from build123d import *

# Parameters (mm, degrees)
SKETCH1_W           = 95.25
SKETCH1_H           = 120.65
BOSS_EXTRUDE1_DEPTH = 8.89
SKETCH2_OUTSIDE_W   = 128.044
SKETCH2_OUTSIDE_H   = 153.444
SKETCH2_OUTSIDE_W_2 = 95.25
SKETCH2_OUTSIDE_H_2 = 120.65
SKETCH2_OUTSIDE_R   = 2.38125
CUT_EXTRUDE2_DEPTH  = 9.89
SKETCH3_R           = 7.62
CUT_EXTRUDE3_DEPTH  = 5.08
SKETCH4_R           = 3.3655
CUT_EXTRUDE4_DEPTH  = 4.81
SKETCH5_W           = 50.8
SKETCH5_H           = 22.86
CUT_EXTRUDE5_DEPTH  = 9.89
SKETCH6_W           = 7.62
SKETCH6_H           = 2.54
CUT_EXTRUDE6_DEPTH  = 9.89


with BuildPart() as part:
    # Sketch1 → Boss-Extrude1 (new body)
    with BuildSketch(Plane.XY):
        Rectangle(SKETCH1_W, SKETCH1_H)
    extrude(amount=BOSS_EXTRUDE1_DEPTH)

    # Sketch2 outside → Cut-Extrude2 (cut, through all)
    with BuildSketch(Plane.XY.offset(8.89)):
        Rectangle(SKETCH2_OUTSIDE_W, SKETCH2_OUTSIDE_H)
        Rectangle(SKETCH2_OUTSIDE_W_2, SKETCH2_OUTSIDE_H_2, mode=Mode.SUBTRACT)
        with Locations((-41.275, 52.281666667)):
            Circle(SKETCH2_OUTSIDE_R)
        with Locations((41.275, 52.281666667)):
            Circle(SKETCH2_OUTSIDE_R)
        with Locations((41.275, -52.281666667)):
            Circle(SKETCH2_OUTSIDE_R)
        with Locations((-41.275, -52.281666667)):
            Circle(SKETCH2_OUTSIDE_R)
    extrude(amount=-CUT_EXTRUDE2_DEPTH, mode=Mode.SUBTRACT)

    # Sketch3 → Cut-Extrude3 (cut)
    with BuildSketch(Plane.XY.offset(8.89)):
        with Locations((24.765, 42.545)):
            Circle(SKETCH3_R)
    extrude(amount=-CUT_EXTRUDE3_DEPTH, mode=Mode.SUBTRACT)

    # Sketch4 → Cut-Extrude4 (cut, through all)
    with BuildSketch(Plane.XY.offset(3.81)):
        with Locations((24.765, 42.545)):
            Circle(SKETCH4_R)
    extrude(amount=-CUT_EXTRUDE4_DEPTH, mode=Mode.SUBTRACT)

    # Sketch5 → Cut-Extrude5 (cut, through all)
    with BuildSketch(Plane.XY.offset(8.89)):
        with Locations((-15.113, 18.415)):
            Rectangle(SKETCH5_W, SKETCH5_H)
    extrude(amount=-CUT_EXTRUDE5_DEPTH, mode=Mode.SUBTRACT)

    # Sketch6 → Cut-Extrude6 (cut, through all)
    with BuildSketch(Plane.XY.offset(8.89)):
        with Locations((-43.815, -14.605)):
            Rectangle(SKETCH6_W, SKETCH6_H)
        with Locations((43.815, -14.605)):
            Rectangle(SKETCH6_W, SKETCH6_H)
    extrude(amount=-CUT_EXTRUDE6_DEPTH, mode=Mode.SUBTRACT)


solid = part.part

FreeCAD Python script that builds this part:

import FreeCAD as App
import Part
import Sketcher
Q = App.Units.Quantity


def add_polygon(sketch, points):
    """Adds a closed chain of lines whose ends are joined by coincident constraints."""
    first, n = sketch.GeometryCount, len(points)
    for a, b in zip(points, points[1:] + points[:1]):
        sketch.addGeometry(Part.LineSegment(App.Vector(*a, 0), App.Vector(*b, 0)), False)
    for i in range(n):
        sketch.addConstraint(Sketcher.Constraint("Coincident", first + i, 2, first + (i + 1) % n, 1))

doc = App.newDocument("Part")
body = doc.addObject("PartDesign::Body", "Body")

sketch1 = doc.addObject("Sketcher::SketchObject", "Sketch")
body.addObject(sketch1)
sketch1.AttachmentSupport = (doc.XY_Plane, [""])
sketch1.MapMode = "FlatFace"
add_polygon(sketch1, [(-48, 60), (-48, -60), (48, -60), (48, 60)])
sketch1.addConstraint([
    Sketcher.Constraint("Vertical", 0),
    Sketcher.Constraint("Horizontal", 1),
    Sketcher.Constraint("Vertical", 2),
    Sketcher.Constraint("Horizontal", 3),
    Sketcher.Constraint("Symmetric", 0, 2, 2, 2, -1, 1),
    Sketcher.Constraint("DistanceX", 1, 1, 1, 2, Q("3.75 in")),
    Sketcher.Constraint("DistanceY", 0, 2, 0, 1, Q("4.75 in")),
])
pad1 = doc.addObject("PartDesign::Pad", "Pad")
body.addObject(pad1)
pad1.Profile = sketch1
pad1.Length = Q("0.35 in")

sketch2 = doc.addObject("Sketcher::SketchObject", "Sketch001")
body.addObject(sketch2)
sketch2.AttachmentSupport = (doc.XY_Plane, [""])
sketch2.MapMode = "FlatFace"
sketch2.AttachmentOffset = App.Placement(App.Vector(0, 0, 0.35 * 25.4), App.Rotation())
add_polygon(sketch2, [(-64, 76.7), (-64, -76.7), (64, -76.7), (64, 76.7)])
add_polygon(sketch2, [(47.6, -60.3), (-47.6, -60.3), (-47.6, 60.3), (47.6, 60.3)])
sketch2.addGeometry(Part.Circle(App.Vector(-41.3, 52.3, 0), App.Vector(0, 0, 1), 2.4), False)
sketch2.addGeometry(Part.Circle(App.Vector(41.3, 52.3, 0), App.Vector(0, 0, 1), 2.4), False)
sketch2.addGeometry(Part.Circle(App.Vector(41.3, -52.3, 0), App.Vector(0, 0, 1), 2.4), False)
sketch2.addGeometry(Part.Circle(App.Vector(-41.3, -52.3, 0), App.Vector(0, 0, 1), 2.4), False)
sketch2.addConstraint([
    Sketcher.Constraint("Vertical", 0),
    Sketcher.Constraint("Horizontal", 1),
    Sketcher.Constraint("Vertical", 2),
    Sketcher.Constraint("Horizontal", 3),
    Sketcher.Constraint("Horizontal", 4),
    Sketcher.Constraint("Vertical", 5),
    Sketcher.Constraint("Horizontal", 6),
    Sketcher.Constraint("Vertical", 7),
    Sketcher.Constraint("Equal", 8, 9),
    Sketcher.Constraint("Equal", 9, 10),
    Sketcher.Constraint("Equal", 10, 11),
    Sketcher.Constraint("Symmetric", 8, 3, 10, 3, -1, 1),
    Sketcher.Constraint("Symmetric", 9, 3, 11, 3, -1, 1),
    Sketcher.Constraint("Symmetric", 0, 2, 2, 2, -1, 1),
    Sketcher.Constraint("Symmetric", 4, 2, 6, 2, -1, 1),
    Sketcher.Constraint("Symmetric", 8, 3, 9, 3, -2),
    Sketcher.Constraint("Diameter", 8, Q("0.1875 in")),
    Sketcher.Constraint("DistanceX", 4, 2, 4, 1, Q("3.75 in")),
    Sketcher.Constraint("DistanceY", 5, 1, 5, 2, Q("4.75 in")),
    Sketcher.Constraint("DistanceX", 4, 2, 10, 3, Q("3.5 in")),
    Sketcher.Constraint("DistanceX", 1, 1, 1, 2, 128.044),
    Sketcher.Constraint("DistanceY", 0, 2, 0, 1, 153.444),
    Sketcher.Constraint("DistanceY", -1, 1, 8, 3, 52.281667),
])
pocket1 = doc.addObject("PartDesign::Pocket", "Pocket")
body.addObject(pocket1)
pocket1.Profile = sketch2
pocket1.Type = "ThroughAll"

sketch3 = doc.addObject("Sketcher::SketchObject", "Sketch002")
body.addObject(sketch3)
sketch3.AttachmentSupport = (doc.XY_Plane, [""])
sketch3.MapMode = "FlatFace"
sketch3.AttachmentOffset = App.Placement(App.Vector(0, 0, 0.35 * 25.4), App.Rotation())
sketch3.addGeometry(Part.Circle(App.Vector(25, 43, 0), App.Vector(0, 0, 1), 8), False)
sketch3.addConstraint([
    Sketcher.Constraint("Diameter", 0, Q("0.6 in")),
    Sketcher.Constraint("DistanceX", -1, 1, 0, 3, Q("0.975 in")),
    Sketcher.Constraint("DistanceY", -1, 1, 0, 3, Q("1.675 in")),
])
pocket2 = doc.addObject("PartDesign::Pocket", "Pocket001")
body.addObject(pocket2)
pocket2.Profile = sketch3
pocket2.Length = Q("0.2 in")

sketch4 = doc.addObject("Sketcher::SketchObject", "Sketch003")
body.addObject(sketch4)
sketch4.AttachmentSupport = (doc.XY_Plane, [""])
sketch4.MapMode = "FlatFace"
sketch4.AttachmentOffset = App.Placement(App.Vector(0, 0, 0.15 * 25.4), App.Rotation())
sketch4.addGeometry(Part.Circle(App.Vector(24.8, 42.5, 0), App.Vector(0, 0, 1), 3.4), False)
sketch4.addConstraint([
    Sketcher.Constraint("Diameter", 0, Q("0.265 in")),
    Sketcher.Constraint("DistanceX", -1, 1, 0, 3, Q("0.975 in")),
    Sketcher.Constraint("DistanceY", -1, 1, 0, 3, Q("1.675 in")),
])
pocket3 = doc.addObject("PartDesign::Pocket", "Pocket002")
body.addObject(pocket3)
pocket3.Profile = sketch4
pocket3.Type = "ThroughAll"

sketch5 = doc.addObject("Sketcher::SketchObject", "Sketch004")
body.addObject(sketch5)
sketch5.AttachmentSupport = (doc.XY_Plane, [""])
sketch5.MapMode = "FlatFace"
sketch5.AttachmentOffset = App.Placement(App.Vector(0, 0, 0.35 * 25.4), App.Rotation())
add_polygon(sketch5, [(-41, 30), (-41, 7), (10, 7), (10, 30)])
sketch5.addConstraint([
    Sketcher.Constraint("Vertical", 0),
    Sketcher.Constraint("Horizontal", 1),
    Sketcher.Constraint("Vertical", 2),
    Sketcher.Constraint("Horizontal", 3),
    Sketcher.Constraint("DistanceX", 1, 1, 1, 2, Q("2 in")),
    Sketcher.Constraint("DistanceY", 0, 2, 0, 1, Q("0.9 in")),
    Sketcher.Constraint("DistanceX", 0, 2, -1, 1, Q("1.595 in")),
    Sketcher.Constraint("DistanceY", -1, 1, 0, 2, Q("0.275 in")),
])
pocket4 = doc.addObject("PartDesign::Pocket", "Pocket003")
body.addObject(pocket4)
pocket4.Profile = sketch5
pocket4.Type = "ThroughAll"

sketch6 = doc.addObject("Sketcher::SketchObject", "Sketch005")
body.addObject(sketch6)
sketch6.AttachmentSupport = (doc.XY_Plane, [""])
sketch6.MapMode = "FlatFace"
sketch6.AttachmentOffset = App.Placement(App.Vector(0, 0, 0.35 * 25.4), App.Rotation())
add_polygon(sketch6, [(-47.6, -13.3), (-47.6, -15.9), (-40, -15.9), (-40, -13.3)])
add_polygon(sketch6, [(40, -13.3), (40, -15.9), (47.6, -15.9), (47.6, -13.3)])
sketch6.addConstraint([
    Sketcher.Constraint("Vertical", 0),
    Sketcher.Constraint("Horizontal", 1),
    Sketcher.Constraint("Vertical", 2),
    Sketcher.Constraint("Horizontal", 3),
    Sketcher.Constraint("Vertical", 4),
    Sketcher.Constraint("Horizontal", 5),
    Sketcher.Constraint("Vertical", 6),
    Sketcher.Constraint("Horizontal", 7),
    Sketcher.Constraint("Symmetric", 1, 2, 4, 2, -2),
    Sketcher.Constraint("Symmetric", 3, 2, 6, 2, -2),
    Sketcher.Constraint("DistanceX", 1, 1, 1, 2, Q("0.3 in")),
    Sketcher.Constraint("DistanceY", 0, 2, 0, 1, Q("0.1 in")),
    Sketcher.Constraint("DistanceX", 1, 2, 4, 2, Q("3.15 in")),
    Sketcher.Constraint("DistanceY", 0, 2, -1, 1, Q("0.625 in")),
])
pocket5 = doc.addObject("PartDesign::Pocket", "Pocket004")
body.addObject(pocket5)
pocket5.Profile = sketch6
pocket5.Type = "ThroughAll"

doc.recompute()
